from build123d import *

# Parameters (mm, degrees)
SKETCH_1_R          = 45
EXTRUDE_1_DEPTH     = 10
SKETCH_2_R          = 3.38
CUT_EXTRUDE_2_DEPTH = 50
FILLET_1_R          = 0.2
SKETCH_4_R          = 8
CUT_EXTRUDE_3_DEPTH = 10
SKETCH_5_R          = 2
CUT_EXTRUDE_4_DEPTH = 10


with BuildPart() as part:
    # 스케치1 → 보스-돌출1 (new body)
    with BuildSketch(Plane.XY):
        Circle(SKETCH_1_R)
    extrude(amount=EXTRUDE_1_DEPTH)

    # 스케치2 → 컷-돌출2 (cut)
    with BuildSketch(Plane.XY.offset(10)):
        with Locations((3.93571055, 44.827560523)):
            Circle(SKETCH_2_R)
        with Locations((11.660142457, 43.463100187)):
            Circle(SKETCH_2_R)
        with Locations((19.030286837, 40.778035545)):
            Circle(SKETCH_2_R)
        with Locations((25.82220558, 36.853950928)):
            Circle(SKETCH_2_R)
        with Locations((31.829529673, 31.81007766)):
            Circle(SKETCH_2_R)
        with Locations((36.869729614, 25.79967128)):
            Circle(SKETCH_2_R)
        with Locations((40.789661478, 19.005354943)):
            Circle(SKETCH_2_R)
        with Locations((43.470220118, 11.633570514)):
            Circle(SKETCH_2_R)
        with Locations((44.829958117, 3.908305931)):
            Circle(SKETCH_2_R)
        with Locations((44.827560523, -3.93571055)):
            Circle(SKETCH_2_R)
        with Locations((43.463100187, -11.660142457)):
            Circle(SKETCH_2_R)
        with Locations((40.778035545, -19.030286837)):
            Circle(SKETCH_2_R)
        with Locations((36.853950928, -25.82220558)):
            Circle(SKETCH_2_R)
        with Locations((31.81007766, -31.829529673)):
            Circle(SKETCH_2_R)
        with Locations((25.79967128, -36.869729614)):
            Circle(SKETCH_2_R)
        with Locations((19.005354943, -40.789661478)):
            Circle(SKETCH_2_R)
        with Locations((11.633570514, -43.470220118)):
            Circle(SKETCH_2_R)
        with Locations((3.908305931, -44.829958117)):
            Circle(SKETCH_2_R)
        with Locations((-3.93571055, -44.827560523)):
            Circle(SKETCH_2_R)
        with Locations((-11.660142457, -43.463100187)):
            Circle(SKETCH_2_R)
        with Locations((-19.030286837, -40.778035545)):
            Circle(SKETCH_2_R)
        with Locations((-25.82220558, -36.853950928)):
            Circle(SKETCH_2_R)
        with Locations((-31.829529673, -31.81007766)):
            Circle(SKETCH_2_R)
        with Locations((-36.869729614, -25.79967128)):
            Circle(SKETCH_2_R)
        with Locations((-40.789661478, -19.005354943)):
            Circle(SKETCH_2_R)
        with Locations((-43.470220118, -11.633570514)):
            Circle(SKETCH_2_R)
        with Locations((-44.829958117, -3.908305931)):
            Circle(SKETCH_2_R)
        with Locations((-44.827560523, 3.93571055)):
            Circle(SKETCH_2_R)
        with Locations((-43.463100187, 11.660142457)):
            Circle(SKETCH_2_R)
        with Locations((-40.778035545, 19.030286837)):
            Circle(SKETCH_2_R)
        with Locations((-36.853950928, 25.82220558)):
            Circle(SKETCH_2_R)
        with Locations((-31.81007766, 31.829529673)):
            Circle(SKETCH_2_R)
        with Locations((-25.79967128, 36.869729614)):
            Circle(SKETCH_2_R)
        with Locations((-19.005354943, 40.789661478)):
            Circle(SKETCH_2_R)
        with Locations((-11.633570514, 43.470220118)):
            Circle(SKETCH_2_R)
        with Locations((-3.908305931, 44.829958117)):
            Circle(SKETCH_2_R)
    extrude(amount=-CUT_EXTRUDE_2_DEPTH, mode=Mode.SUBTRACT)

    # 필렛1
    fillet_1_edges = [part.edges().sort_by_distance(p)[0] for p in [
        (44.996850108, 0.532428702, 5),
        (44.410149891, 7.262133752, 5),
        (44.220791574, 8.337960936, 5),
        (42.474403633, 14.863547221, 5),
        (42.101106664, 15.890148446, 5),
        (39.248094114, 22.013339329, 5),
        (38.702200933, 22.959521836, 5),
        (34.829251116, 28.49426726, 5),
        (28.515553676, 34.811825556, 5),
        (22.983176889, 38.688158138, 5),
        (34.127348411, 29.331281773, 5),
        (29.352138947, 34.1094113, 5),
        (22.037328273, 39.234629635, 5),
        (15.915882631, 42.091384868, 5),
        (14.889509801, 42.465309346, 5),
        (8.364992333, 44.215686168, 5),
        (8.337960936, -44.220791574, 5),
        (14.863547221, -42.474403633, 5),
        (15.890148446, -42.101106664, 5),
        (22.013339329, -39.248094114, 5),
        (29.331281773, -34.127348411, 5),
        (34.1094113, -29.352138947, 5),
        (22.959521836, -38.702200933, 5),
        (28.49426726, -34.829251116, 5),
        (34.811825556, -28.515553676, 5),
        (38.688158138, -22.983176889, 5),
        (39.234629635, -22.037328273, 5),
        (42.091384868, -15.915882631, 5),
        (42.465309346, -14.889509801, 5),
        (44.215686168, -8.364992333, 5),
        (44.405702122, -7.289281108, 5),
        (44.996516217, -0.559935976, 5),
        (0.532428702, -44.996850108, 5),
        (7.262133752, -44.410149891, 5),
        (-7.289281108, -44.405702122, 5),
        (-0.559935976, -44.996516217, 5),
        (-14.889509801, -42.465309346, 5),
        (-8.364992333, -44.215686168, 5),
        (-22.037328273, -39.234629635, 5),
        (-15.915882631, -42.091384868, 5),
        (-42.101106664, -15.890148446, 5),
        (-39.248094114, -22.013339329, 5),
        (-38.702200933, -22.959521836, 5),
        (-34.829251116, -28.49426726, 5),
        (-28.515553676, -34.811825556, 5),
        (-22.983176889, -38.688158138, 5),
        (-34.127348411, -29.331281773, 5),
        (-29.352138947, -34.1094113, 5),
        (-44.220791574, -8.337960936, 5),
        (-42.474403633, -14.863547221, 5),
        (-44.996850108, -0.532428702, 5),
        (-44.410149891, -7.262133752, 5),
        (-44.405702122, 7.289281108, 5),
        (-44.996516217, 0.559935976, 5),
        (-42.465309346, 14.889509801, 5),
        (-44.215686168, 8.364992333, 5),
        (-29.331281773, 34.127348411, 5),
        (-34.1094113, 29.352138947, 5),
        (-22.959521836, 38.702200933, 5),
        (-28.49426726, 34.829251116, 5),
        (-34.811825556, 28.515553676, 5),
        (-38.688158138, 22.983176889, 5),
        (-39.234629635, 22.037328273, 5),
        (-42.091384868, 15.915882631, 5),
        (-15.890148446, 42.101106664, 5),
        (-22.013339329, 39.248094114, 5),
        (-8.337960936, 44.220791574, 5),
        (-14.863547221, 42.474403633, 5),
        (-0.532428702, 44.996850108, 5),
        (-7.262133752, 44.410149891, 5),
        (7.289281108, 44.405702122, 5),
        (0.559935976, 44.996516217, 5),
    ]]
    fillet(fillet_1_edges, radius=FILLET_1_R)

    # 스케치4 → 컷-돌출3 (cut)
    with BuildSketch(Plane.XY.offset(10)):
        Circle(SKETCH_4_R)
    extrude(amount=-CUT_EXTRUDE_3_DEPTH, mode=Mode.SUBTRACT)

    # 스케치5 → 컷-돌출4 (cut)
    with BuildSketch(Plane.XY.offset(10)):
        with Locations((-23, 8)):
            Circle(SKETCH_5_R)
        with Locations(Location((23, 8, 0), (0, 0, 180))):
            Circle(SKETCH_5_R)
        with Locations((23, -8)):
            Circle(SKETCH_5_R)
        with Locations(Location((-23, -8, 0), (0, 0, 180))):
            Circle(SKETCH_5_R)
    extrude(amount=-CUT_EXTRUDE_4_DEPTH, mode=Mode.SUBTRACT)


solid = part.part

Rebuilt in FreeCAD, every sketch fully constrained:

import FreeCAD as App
import Part
import Sketcher
Q = App.Units.Quantity


def edges_at(feature, points):
    """Names of the edges that pass closest to the given points."""
    edges = feature.Shape.Edges
    near = lambda p: min(range(len(edges)), key=lambda i: edges[i].distToShape(Part.Vertex(*p))[0])
    return sorted({f"Edge{near(p) + 1}" for p in points})

doc = App.newDocument("Part")
body = doc.addObject("PartDesign::Body", "Body")

sketch1 = body.newObject("Sketcher::SketchObject", "Sketch")
sketch1.AttachmentSupport = (doc.getObject("XY_Plane"), [""])
sketch1.MapMode = "FlatFace"
sketch1.addGeometry(Part.Circle(App.Vector(0, 0, 0), App.Vector(0, 0, 1), 45), False)
sketch1.addConstraint(Sketcher.Constraint("Coincident", 0, 3, -1, 1))
sketch1.addConstraint(Sketcher.Constraint("Diameter", 0, Q("90 mm")))
pad1 = body.newObject("PartDesign::Pad", "Pad")
pad1.Profile = sketch1
pad1.Length = 10

sketch2 = body.newObject("Sketcher::SketchObject", "Sketch001")
sketch2.AttachmentSupport = (doc.getObject("XY_Plane"), [""])
sketch2.MapMode = "FlatFace"
sketch2.AttachmentOffset = App.Placement(App.Vector(0, 0, 10), App.Rotation())
sketch2.addGeometry(Part.Circle(App.Vector(3.935711, 44.827561, 0), App.Vector(0, 0, 1), 3.38), False)
sketch2.addGeometry(Part.Circle(App.Vector(11.660142, 43.4631, 0), App.Vector(0, 0, 1), 3.38), False)
sketch2.addGeometry(Part.Circle(App.Vector(19.030287, 40.778036, 0), App.Vector(0, 0, 1), 3.38), False)
sketch2.addGeometry(Part.Circle(App.Vector(25.822206, 36.853951, 0), App.Vector(0, 0, 1), 3.38), False)
sketch2.addGeometry(Part.Circle(App.Vector(31.82953, 31.810078, 0), App.Vector(0, 0, 1), 3.38), False)
sketch2.addGeometry(Part.Circle(App.Vector(36.86973, 25.799671, 0), App.Vector(0, 0, 1), 3.38), False)
sketch2.addGeometry(Part.Circle(App.Vector(40.789661, 19.005355, 0), App.Vector(0, 0, 1), 3.38), False)
sketch2.addGeometry(Part.Circle(App.Vector(43.47022, 11.633571, 0), App.Vector(0, 0, 1), 3.38), False)
sketch2.addGeometry(Part.Circle(App.Vector(44.829958, 3.908306, 0), App.Vector(0, 0, 1), 3.38), False)
sketch2.addGeometry(Part.Circle(App.Vector(44.827561, -3.935711, 0), App.Vector(0, 0, 1), 3.38), False)
sketch2.addGeometry(Part.Circle(App.Vector(43.4631, -11.660142, 0), App.Vector(0, 0, 1), 3.38), False)
sketch2.addGeometry(Part.Circle(App.Vector(40.778036, -19.030287, 0), App.Vector(0, 0, 1), 3.38), False)
sketch2.addGeometry(Part.Circle(App.Vector(36.853951, -25.822206, 0), App.Vector(0, 0, 1), 3.38), False)
sketch2.addGeometry(Part.Circle(App.Vector(31.810078, -31.82953, 0), App.Vector(0, 0, 1), 3.38), False)
sketch2.addGeometry(Part.Circle(App.Vector(25.799671, -36.86973, 0), App.Vector(0, 0, 1), 3.38), False)
sketch2.addGeometry(Part.Circle(App.Vector(19.005355, -40.789661, 0), App.Vector(0, 0, 1), 3.38), False)
sketch2.addGeometry(Part.Circle(App.Vector(11.633571, -43.47022, 0), App.Vector(0, 0, 1), 3.38), False)
sketch2.addGeometry(Part.Circle(App.Vector(3.908306, -44.829958, 0), App.Vector(0, 0, 1), 3.38), False)
sketch2.addGeometry(Part.Circle(App.Vector(-3.935711, -44.827561, 0), App.Vector(0, 0, 1), 3.38), False)
sketch2.addGeometry(Part.Circle(App.Vector(-11.660142, -43.4631, 0), App.Vector(0, 0, 1), 3.38), False)
sketch2.addGeometry(Part.Circle(App.Vector(-19.030287, -40.778036, 0), App.Vector(0, 0, 1), 3.38), False)
sketch2.addGeometry(Part.Circle(App.Vector(-25.822206, -36.853951, 0), App.Vector(0, 0, 1), 3.38), False)
sketch2.addGeometry(Part.Circle(App.Vector(-31.82953, -31.810078, 0), App.Vector(0, 0, 1), 3.38), False)
sketch2.addGeometry(Part.Circle(App.Vector(-36.86973, -25.799671, 0), App.Vector(0, 0, 1), 3.38), False)
sketch2.addGeometry(Part.Circle(App.Vector(-40.789661, -19.005355, 0), App.Vector(0, 0, 1), 3.38), False)
sketch2.addGeometry(Part.Circle(App.Vector(-43.47022, -11.633571, 0), App.Vector(0, 0, 1), 3.38), False)
sketch2.addGeometry(Part.Circle(App.Vector(-44.829958, -3.908306, 0), App.Vector(0, 0, 1), 3.38), False)
sketch2.addGeometry(Part.Circle(App.Vector(-44.827561, 3.935711, 0), App.Vector(0, 0, 1), 3.38), False)
sketch2.addGeometry(Part.Circle(App.Vector(-43.4631, 11.660142, 0), App.Vector(0, 0, 1), 3.38), False)
sketch2.addGeometry(Part.Circle(App.Vector(-40.778036, 19.030287, 0), App.Vector(0, 0, 1), 3.38), False)
sketch2.addGeometry(Part.Circle(App.Vector(-36.853951, 25.822206, 0), App.Vector(0, 0, 1), 3.38), False)
sketch2.addGeometry(Part.Circle(App.Vector(-31.810078, 31.82953, 0), App.Vector(0, 0, 1), 3.38), False)
sketch2.addGeometry(Part.Circle(App.Vector(-25.799671, 36.86973, 0), App.Vector(0, 0, 1), 3.38), False)
sketch2.addGeometry(Part.Circle(App.Vector(-19.005355, 40.789661, 0), App.Vector(0, 0, 1), 3.38), False)
sketch2.addGeometry(Part.Circle(App.Vector(-11.633571, 43.47022, 0), App.Vector(0, 0, 1), 3.38), False)
sketch2.addGeometry(Part.Circle(App.Vector(-3.908306, 44.829958, 0), App.Vector(0, 0, 1), 3.38), False)
sketch2.addConstraint(Sketcher.Constraint("Equal", 0, 1))
sketch2.addConstraint(Sketcher.Constraint("Equal", 1, 2))
sketch2.addConstraint(Sketcher.Constraint("Equal", 2, 3))
sketch2.addConstraint(Sketcher.Constraint("Equal", 3, 4))
sketch2.addConstraint(Sketcher.Constraint("Equal", 4, 5))
sketch2.addConstraint(Sketcher.Constraint("Equal", 5, 6))
sketch2.addConstraint(Sketcher.Constraint("Equal", 6, 7))
sketch2.addConstraint(Sketcher.Constraint("Equal", 7, 8))
sketch2.addConstraint(Sketcher.Constraint("Equal", 8, 9))
sketch2.addConstraint(Sketcher.Constraint("Equal", 9, 10))
sketch2.addConstraint(Sketcher.Constraint("Equal", 10, 11))
sketch2.addConstraint(Sketcher.Constraint("Equal", 11, 12))
sketch2.addConstraint(Sketcher.Constraint("Equal", 12, 13))
sketch2.addConstraint(Sketcher.Constraint("Equal", 13, 14))
sketch2.addConstraint(Sketcher.Constraint("Equal", 14, 15))
sketch2.addConstraint(Sketcher.Constraint("Equal", 15, 16))
sketch2.addConstraint(Sketcher.Constraint("Equal", 16, 17))
sketch2.addConstraint(Sketcher.Constraint("Equal", 17, 18))
sketch2.addConstraint(Sketcher.Constraint("Equal", 18, 19))
sketch2.addConstraint(Sketcher.Constraint("Equal", 19, 20))
sketch2.addConstraint(Sketcher.Constraint("Equal", 20, 21))
sketch2.addConstraint(Sketcher.Constraint("Equal", 21, 22))
sketch2.addConstraint(Sketcher.Constraint("Equal", 22, 23))
sketch2.addConstraint(Sketcher.Constraint("Equal", 23, 24))
sketch2.addConstraint(Sketcher.Constraint("Equal", 24, 25))
sketch2.addConstraint(Sketcher.Constraint("Equal", 25, 26))
sketch2.addConstraint(Sketcher.Constraint("Equal", 26, 27))
sketch2.addConstraint(Sketcher.Constraint("Equal", 27, 28))
sketch2.addConstraint(Sketcher.Constraint("Equal", 28, 29))
sketch2.addConstraint(Sketcher.Constraint("Equal", 29, 30))
sketch2.addConstraint(Sketcher.Constraint("Equal", 30, 31))
sketch2.addConstraint(Sketcher.Constraint("Equal", 31, 32))
sketch2.addConstraint(Sketcher.Constraint("Equal", 32, 33))
sketch2.addConstraint(Sketcher.Constraint("Equal", 33, 34))
sketch2.addConstraint(Sketcher.Constraint("Equal", 34, 35))
sketch2.addConstraint(Sketcher.Constraint("Symmetric", 0, 3, 18, 3, -1, 1))
sketch2.addConstraint(Sketcher.Constraint("Symmetric", 1, 3, 19, 3, -1, 1))
sketch2.addConstraint(Sketcher.Constraint("Symmetric", 2, 3, 20, 3, -1, 1))
sketch2.addConstraint(Sketcher.Constraint("Symmetric", 3, 3, 21, 3, -1, 1))
sketch2.addConstraint(Sketcher.Constraint("Symmetric", 4, 3, 22, 3, -1, 1))
sketch2.addConstraint(Sketcher.Constraint("Symmetric", 5, 3, 23, 3, -1, 1))
sketch2.addConstraint(Sketcher.Constraint("Symmetric", 6, 3, 24, 3, -1, 1))
sketch2.addConstraint(Sketcher.Constraint("Symmetric", 7, 3, 25, 3, -1, 1))
sketch2.addConstraint(Sketcher.Constraint("Symmetric", 8, 3, 26, 3, -1, 1))
sketch2.addConstraint(Sketcher.Constraint("Symmetric", 9, 3, 27, 3, -1, 1))
sketch2.addConstraint(Sketcher.Constraint("Symmetric", 10, 3, 28, 3, -1, 1))
sketch2.addConstraint(Sketcher.Constraint("Symmetric", 11, 3, 29, 3, -1, 1))
sketch2.addConstraint(Sketcher.Constraint("Symmetric", 12, 3, 30, 3, -1, 1))
sketch2.addConstraint(Sketcher.Constraint("Symmetric", 13, 3, 31, 3, -1, 1))
sketch2.addConstraint(Sketcher.Constraint("Symmetric", 14, 3, 32, 3, -1, 1))
sketch2.addConstraint(Sketcher.Constraint("Symmetric", 15, 3, 33, 3, -1, 1))
sketch2.addConstraint(Sketcher.Constraint("Symmetric", 16, 3, 34, 3, -1, 1))
sketch2.addConstraint(Sketcher.Constraint("Symmetric", 17, 3, 35, 3, -1, 1))
sketch2.addConstraint(Sketcher.Constraint("Diameter", 0, Q("6.76 mm")))
sketch2.addConstraint(Sketcher.Constraint("DistanceY", -1, 1, 1, 3, Q("43.4631 mm")))
sketch2.addConstraint(Sketcher.Constraint("DistanceX", -1, 1, 10, 3, Q("43.4631 mm")))
sketch2.addConstraint(Sketcher.Constraint("DistanceX", 4, 3, 5, 3, Q("5.0402 mm")))
sketch2.addConstraint(Sketcher.Constraint("DistanceY", 7, 3, 5, 3, Q("14.166101 mm")))
sketch2.addConstraint(Sketcher.Constraint("DistanceX", 6, 3, 9, 3, Q("4.037899 mm")))
sketch2.addConstraint(Sketcher.Constraint("DistanceY", 14, 3, 13, 3, Q("5.0402 mm")))
sketch2.addConstraint(Sketcher.Constraint("DistanceX", 16, 3, 14, 3, Q("14.166101 mm")))
sketch2.addConstraint(Sketcher.Constraint("DistanceY", 18, 3, 15, 3, Q("4.037899 mm")))
sketch2.addConstraint(Sketcher.Constraint("DistanceX", -1, 1, 0, 3, Q("3.935711 mm")))
sketch2.addConstraint(Sketcher.Constraint("DistanceY", -1, 1, 0, 3, Q("44.827561 mm")))
sketch2.addConstraint(Sketcher.Constraint("DistanceY", -1, 1, 3, 3, Q("36.853951 mm")))
sketch2.addConstraint(Sketcher.Constraint("DistanceX", -1, 1, 4, 3, Q("31.82953 mm")))
sketch2.addConstraint(Sketcher.Constraint("DistanceY", -1, 1, 5, 3, Q("25.799671 mm")))
sketch2.addConstraint(Sketcher.Constraint("DistanceX", -1, 1, 6, 3, Q("40.789661 mm")))
sketch2.addConstraint(Sketcher.Constraint("DistanceX", -1, 1, 7, 3, Q("43.47022 mm")))
sketch2.addConstraint(Sketcher.Constraint("DistanceX", -1, 1, 8, 3, Q("44.829958 mm")))
sketch2.addConstraint(Sketcher.Constraint("DistanceY", 9, 3, -1, 1, Q("3.935711 mm")))
sketch2.addConstraint(Sketcher.Constraint("DistanceX", -1, 1, 12, 3, Q("36.853951 mm")))
sketch2.addConstraint(Sketcher.Constraint("DistanceY", 13, 3, -1, 1, Q("31.82953 mm")))
sketch2.addConstraint(Sketcher.Constraint("DistanceX", -1, 1, 14, 3, Q("25.799671 mm")))
sketch2.addConstraint(Sketcher.Constraint("DistanceY", 16, 3, -1, 1, Q("43.47022 mm")))
sketch2.addConstraint(Sketcher.Constraint("DistanceY", 17, 3, -1, 1, Q("44.829958 mm")))
sketch2.addConstraint(Sketcher.Constraint("DistanceX", 0, 3, 1, 3, Q("7.724432 mm")))
sketch2.addConstraint(Sketcher.Constraint("DistanceX", 2, 3, 3, 3, Q("6.791919 mm")))
sketch2.addConstraint(Sketcher.Constraint("DistanceY", 6, 3, 2, 3, Q("21.772681 mm")))
sketch2.addConstraint(Sketcher.Constraint("DistanceY", 8, 3, 6, 3, Q("15.097049 mm")))
sketch2.addConstraint(Sketcher.Constraint("DistanceY", 8, 3, 4, 3, Q("27.901772 mm")))
sketch2.addConstraint(Sketcher.Constraint("DistanceY", 9, 3, 4, 3, Q("35.745788 mm")))
sketch2.addConstraint(Sketcher.Constraint("DistanceY", 10, 3, 9, 3, Q("7.724432 mm")))
sketch2.addConstraint(Sketcher.Constraint("DistanceY", 11, 3, 6, 3, Q("38.035642 mm")))
sketch2.addConstraint(Sketcher.Constraint("DistanceY", 12, 3, 11, 3, Q("6.791919 mm")))
sketch2.addConstraint(Sketcher.Constraint("DistanceX", 13, 3, 8, 3, Q("13.01988 mm")))
sketch2.addConstraint(Sketcher.Constraint("DistanceX", 15, 3, 11, 3, Q("21.772681 mm")))
sketch2.addConstraint(Sketcher.Constraint("DistanceX", 17, 3, 15, 3, Q("15.097049 mm")))
sketch2.addConstraint(Sketcher.Constraint("DistanceX", 17, 3, 13, 3, Q("27.901772 mm")))
sketch2.addConstraint(Sketcher.Constraint("DistanceX", 20, 3, 15, 3, Q("38.035642 mm")))
pocket1 = body.newObject("PartDesign::Pocket", "Pocket")
pocket1.Profile = sketch2
pocket1.Length = 50
doc.recompute()

fillet = body.newObject("PartDesign::Fillet", "Fillet")
fillet.Base = (pocket1, edges_at(pocket1, [
    (44.997, 0.532, 5),
    (44.41, 7.262, 5),
    (44.221, 8.338, 5),
    (42.474, 14.864, 5),
    (42.101, 15.89, 5),
    (39.248, 22.013, 5),
    (38.702, 22.96, 5),
    (34.829, 28.494, 5),
    (28.516, 34.812, 5),
    (22.983, 38.688, 5),
    (34.127, 29.331, 5),
    (29.352, 34.109, 5),
    (22.037, 39.235, 5),
    (15.916, 42.091, 5),
    (14.89, 42.465, 5),
    (8.365, 44.216, 5),
    (8.338, -44.221, 5),
    (14.864, -42.474, 5),
    (15.89, -42.101, 5),
    (22.013, -39.248, 5),
    (29.331, -34.127, 5),
    (34.109, -29.352, 5),
    (22.96, -38.702, 5),
    (28.494, -34.829, 5),
    (34.812, -28.516, 5),
    (38.688, -22.983, 5),
    (39.235, -22.037, 5),
    (42.091, -15.916, 5),
    (42.465, -14.89, 5),
    (44.216, -8.365, 5),
    (44.406, -7.289, 5),
    (44.997, -0.56, 5),
    (0.532, -44.997, 5),
    (7.262, -44.41, 5),
    (-7.289, -44.406, 5),
    (-0.56, -44.997, 5),
    (-14.89, -42.465, 5),
    (-8.365, -44.216, 5),
    (-22.037, -39.235, 5),
    (-15.916, -42.091, 5),
    (-42.101, -15.89, 5),
    (-39.248, -22.013, 5),
    (-38.702, -22.96, 5),
    (-34.829, -28.494, 5),
    (-28.516, -34.812, 5),
    (-22.983, -38.688, 5),
    (-34.127, -29.331, 5),
    (-29.352, -34.109, 5),
    (-44.221, -8.338, 5),
    (-42.474, -14.864, 5),
    (-44.997, -0.532, 5),
    (-44.41, -7.262, 5),
    (-44.406, 7.289, 5),
    (-44.997, 0.56, 5),
    (-42.465, 14.89, 5),
    (-44.216, 8.365, 5),
    (-29.331, 34.127, 5),
    (-34.109, 29.352, 5),
    (-22.96, 38.702, 5),
    (-28.494, 34.829, 5),
    (-34.812, 28.516, 5),
    (-38.688, 22.983, 5),
    (-39.235, 22.037, 5),
    (-42.091, 15.916, 5),
    (-15.89, 42.101, 5),
    (-22.013, 39.248, 5),
    (-8.338, 44.221, 5),
    (-14.864, 42.474, 5),
    (-0.532, 44.997, 5),
    (-7.262, 44.41, 5),
    (7.289, 44.406, 5),
    (0.56, 44.997, 5),
]))
fillet.Radius = 0.2

sketch3 = body.newObject("Sketcher::SketchObject", "Sketch002")
sketch3.AttachmentSupport = (doc.getObject("XY_Plane"), [""])
sketch3.MapMode = "FlatFace"
sketch3.AttachmentOffset = App.Placement(App.Vector(0, 0, 10), App.Rotation())
sketch3.addGeometry(Part.Circle(App.Vector(0, 0, 0), App.Vector(0, 0, 1), 8), False)
sketch3.addConstraint(Sketcher.Constraint("Coincident", 0, 3, -1, 1))
sketch3.addConstraint(Sketcher.Constraint("Diameter", 0, Q("16 mm")))
pocket2 = body.newObject("PartDesign::Pocket", "Pocket001")
pocket2.Profile = sketch3
pocket2.Length = 10

sketch4 = body.newObject("Sketcher::SketchObject", "Sketch003")
sketch4.AttachmentSupport = (doc.getObject("XY_Plane"), [""])
sketch4.MapMode = "FlatFace"
sketch4.AttachmentOffset = App.Placement(App.Vector(0, 0, 10), App.Rotation())
sketch4.addGeometry(Part.Circle(App.Vector(-23, 8, 0), App.Vector(0, 0, 1), 2), False)
sketch4.addGeometry(Part.Circle(App.Vector(23, 8, 0), App.Vector(0, 0, 1), 2), False)
sketch4.addGeometry(Part.Circle(App.Vector(23, -8, 0), App.Vector(0, 0, 1), 2), False)
sketch4.addGeometry(Part.Circle(App.Vector(-23, -8, 0), App.Vector(0, 0, 1), 2), False)
sketch4.addConstraint(Sketcher.Constraint("Equal", 0, 1))
sketch4.addConstraint(Sketcher.Constraint("Equal", 1, 2))
sketch4.addConstraint(Sketcher.Constraint("Equal", 2, 3))
sketch4.addConstraint(Sketcher.Constraint("Symmetric", 0, 3, 2, 3, -1, 1))
sketch4.addConstraint(Sketcher.Constraint("Symmetric", 1, 3, 3, 3, -1, 1))
sketch4.addConstraint(Sketcher.Constraint("Symmetric", 0, 3, 1, 3, -2))
sketch4.addConstraint(Sketcher.Constraint("Diameter", 0, Q("4 mm")))
sketch4.addConstraint(Sketcher.Constraint("DistanceX", 0, 3, -1, 1, Q("23 mm")))
sketch4.addConstraint(Sketcher.Constraint("DistanceY", -1, 1, 0, 3, Q("8 mm")))
pocket3 = body.newObject("PartDesign::Pocket", "Pocket002")
pocket3.Profile = sketch4
pocket3.Length = 10

doc.recompute()
